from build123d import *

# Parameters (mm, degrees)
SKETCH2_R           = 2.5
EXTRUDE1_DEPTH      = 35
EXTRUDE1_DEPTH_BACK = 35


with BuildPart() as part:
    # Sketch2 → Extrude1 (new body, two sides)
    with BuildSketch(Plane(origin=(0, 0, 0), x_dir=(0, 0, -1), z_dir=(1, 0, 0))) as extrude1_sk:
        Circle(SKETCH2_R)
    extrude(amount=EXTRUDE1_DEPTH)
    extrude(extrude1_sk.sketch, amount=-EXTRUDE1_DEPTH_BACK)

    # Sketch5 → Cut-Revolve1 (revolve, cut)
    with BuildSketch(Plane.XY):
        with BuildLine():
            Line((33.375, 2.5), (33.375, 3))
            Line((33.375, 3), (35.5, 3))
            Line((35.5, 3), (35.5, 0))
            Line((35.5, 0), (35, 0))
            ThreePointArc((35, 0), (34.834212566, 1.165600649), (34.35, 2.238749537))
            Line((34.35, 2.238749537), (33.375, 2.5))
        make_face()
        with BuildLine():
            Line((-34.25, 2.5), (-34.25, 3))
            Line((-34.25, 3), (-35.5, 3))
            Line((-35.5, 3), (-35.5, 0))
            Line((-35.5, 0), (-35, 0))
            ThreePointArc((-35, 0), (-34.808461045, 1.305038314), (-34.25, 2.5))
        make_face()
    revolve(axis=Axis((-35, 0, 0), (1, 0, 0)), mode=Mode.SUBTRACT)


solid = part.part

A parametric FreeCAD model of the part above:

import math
import FreeCAD as App
import Part
import Sketcher
Q = App.Units.Quantity

doc = App.newDocument("Part")
body = doc.addObject("PartDesign::Body", "Body")

# Sketch on YZ plane
sketch1 = body.newObject("Sketcher::SketchObject", "Sketch")
sketch1.AttachmentSupport = (doc.getObject("YZ_Plane"), [""])
sketch1.MapMode = "FlatFace"
sketch1.addGeometry(Part.Circle(App.Vector(0, 0, 0), App.Vector(0, 0, 1), 2.5), False)
sketch1.addConstraint([
    Sketcher.Constraint("Coincident", 0, 3, -1, 1),
    Sketcher.Constraint("Diameter", 0, 5.0),
])
pad1 = body.newObject("PartDesign::Pad", "Pad")
pad1.Profile = sketch1
pad1.Type = "TwoLengths"
pad1.Length = 35
pad1.Length2 = 35

# Sketch on XY plane
sketch2 = body.newObject("Sketcher::SketchObject", "Sketch001")
sketch2.AttachmentSupport = (doc.getObject("XY_Plane"), [""])
sketch2.MapMode = "FlatFace"
sketch2.addGeometry([
    Part.LineSegment(App.Vector(33.4, 3, 0), App.Vector(33.4, 2.5, 0)),  # 0
    Part.LineSegment(App.Vector(33.4, 2.5, 0), App.Vector(34.4, 2.2, 0)),  # 1
    Part.ArcOfCircle(Part.Circle(App.Vector(30.8, 0, 0), App.Vector(0, 0, 1), 4.2), math.radians(0), math.radians(32)),  # 2
    Part.LineSegment(App.Vector(35, 0, 0), App.Vector(35.5, 0, 0)),  # 3
    Part.LineSegment(App.Vector(35.5, 0, 0), App.Vector(35.5, 3, 0)),  # 4
    Part.LineSegment(App.Vector(35.5, 3, 0), App.Vector(33.4, 3, 0)),  # 5
    Part.LineSegment(App.Vector(-34.2, 2.5, 0), App.Vector(-34.2, 3, 0)),  # 6
    Part.LineSegment(App.Vector(-34.2, 3, 0), App.Vector(-35.5, 3, 0)),  # 7
    Part.LineSegment(App.Vector(-35.5, 3, 0), App.Vector(-35.5, 0, 0)),  # 8
    Part.LineSegment(App.Vector(-35.5, 0, 0), App.Vector(-35, 0, 0)),  # 9
    Part.ArcOfCircle(Part.Circle(App.Vector(-30.5, 0, 0), App.Vector(0, 0, 1), 4.5), math.radians(147), math.radians(180)),  # 10
], False)
sketch2.addConstraint([
    Sketcher.Constraint("Coincident", 0, 2, 1, 1),
    Sketcher.Constraint("Coincident", 1, 2, 2, 2),
    Sketcher.Constraint("Coincident", 2, 1, 3, 1),
    Sketcher.Constraint("Coincident", 3, 2, 4, 1),
    Sketcher.Constraint("Coincident", 4, 2, 5, 1),
    Sketcher.Constraint("Coincident", 5, 2, 0, 1),
    Sketcher.Constraint("Coincident", 6, 2, 7, 1),
    Sketcher.Constraint("Coincident", 7, 2, 8, 1),
    Sketcher.Constraint("Coincident", 8, 2, 9, 1),
    Sketcher.Constraint("Coincident", 9, 2, 10, 2),
    Sketcher.Constraint("Coincident", 10, 1, 6, 1),
    Sketcher.Constraint("Vertical", 0),
    Sketcher.Constraint("Horizontal", 3),
    Sketcher.Constraint("Vertical", 4),
    Sketcher.Constraint("Horizontal", 5),
    Sketcher.Constraint("Vertical", 6),
    Sketcher.Constraint("Horizontal", 7),
    Sketcher.Constraint("Vertical", 8),
    Sketcher.Constraint("Horizontal", 9),
    Sketcher.Constraint("Symmetric", 3, 2, 8, 2, -1, 1),
    Sketcher.Constraint("Symmetric", 2, 1, 9, 2, -2),
    Sketcher.Constraint("PointOnObject", 2, 3, -1),
    Sketcher.Constraint("PointOnObject", 10, 3, -1),
    Sketcher.Constraint("Horizontal", 5, 2, 6, 2),
    Sketcher.Constraint("Horizontal", 0, 2, 10, 1),
    Sketcher.Constraint("Equal", 9, 0),
    Sketcher.Constraint("DistanceY", 4, 1, 4, 2, 3.0),
    Sketcher.Constraint("Angle", 1, Q("-15 deg")),
    Sketcher.Constraint("DistanceX", 3, 1, 3, 2, 0.5),
    Sketcher.Constraint("DistanceX", -1, 1, 2, 1, 35.0),
    Sketcher.Constraint("DistanceX", 7, 2, 7, 1, 1.25),
    Sketcher.Constraint("DistanceX", 6, 2, 1, 2, 68.6),
    Sketcher.Constraint("DistanceX", 5, 2, 5, 1, 2.125),
])
groove = body.newObject("PartDesign::Groove", "Groove")
groove.Profile = sketch2
groove.ReferenceAxis = (sketch2, ["H_Axis"])
groove.Angle = 360

doc.recompute()
